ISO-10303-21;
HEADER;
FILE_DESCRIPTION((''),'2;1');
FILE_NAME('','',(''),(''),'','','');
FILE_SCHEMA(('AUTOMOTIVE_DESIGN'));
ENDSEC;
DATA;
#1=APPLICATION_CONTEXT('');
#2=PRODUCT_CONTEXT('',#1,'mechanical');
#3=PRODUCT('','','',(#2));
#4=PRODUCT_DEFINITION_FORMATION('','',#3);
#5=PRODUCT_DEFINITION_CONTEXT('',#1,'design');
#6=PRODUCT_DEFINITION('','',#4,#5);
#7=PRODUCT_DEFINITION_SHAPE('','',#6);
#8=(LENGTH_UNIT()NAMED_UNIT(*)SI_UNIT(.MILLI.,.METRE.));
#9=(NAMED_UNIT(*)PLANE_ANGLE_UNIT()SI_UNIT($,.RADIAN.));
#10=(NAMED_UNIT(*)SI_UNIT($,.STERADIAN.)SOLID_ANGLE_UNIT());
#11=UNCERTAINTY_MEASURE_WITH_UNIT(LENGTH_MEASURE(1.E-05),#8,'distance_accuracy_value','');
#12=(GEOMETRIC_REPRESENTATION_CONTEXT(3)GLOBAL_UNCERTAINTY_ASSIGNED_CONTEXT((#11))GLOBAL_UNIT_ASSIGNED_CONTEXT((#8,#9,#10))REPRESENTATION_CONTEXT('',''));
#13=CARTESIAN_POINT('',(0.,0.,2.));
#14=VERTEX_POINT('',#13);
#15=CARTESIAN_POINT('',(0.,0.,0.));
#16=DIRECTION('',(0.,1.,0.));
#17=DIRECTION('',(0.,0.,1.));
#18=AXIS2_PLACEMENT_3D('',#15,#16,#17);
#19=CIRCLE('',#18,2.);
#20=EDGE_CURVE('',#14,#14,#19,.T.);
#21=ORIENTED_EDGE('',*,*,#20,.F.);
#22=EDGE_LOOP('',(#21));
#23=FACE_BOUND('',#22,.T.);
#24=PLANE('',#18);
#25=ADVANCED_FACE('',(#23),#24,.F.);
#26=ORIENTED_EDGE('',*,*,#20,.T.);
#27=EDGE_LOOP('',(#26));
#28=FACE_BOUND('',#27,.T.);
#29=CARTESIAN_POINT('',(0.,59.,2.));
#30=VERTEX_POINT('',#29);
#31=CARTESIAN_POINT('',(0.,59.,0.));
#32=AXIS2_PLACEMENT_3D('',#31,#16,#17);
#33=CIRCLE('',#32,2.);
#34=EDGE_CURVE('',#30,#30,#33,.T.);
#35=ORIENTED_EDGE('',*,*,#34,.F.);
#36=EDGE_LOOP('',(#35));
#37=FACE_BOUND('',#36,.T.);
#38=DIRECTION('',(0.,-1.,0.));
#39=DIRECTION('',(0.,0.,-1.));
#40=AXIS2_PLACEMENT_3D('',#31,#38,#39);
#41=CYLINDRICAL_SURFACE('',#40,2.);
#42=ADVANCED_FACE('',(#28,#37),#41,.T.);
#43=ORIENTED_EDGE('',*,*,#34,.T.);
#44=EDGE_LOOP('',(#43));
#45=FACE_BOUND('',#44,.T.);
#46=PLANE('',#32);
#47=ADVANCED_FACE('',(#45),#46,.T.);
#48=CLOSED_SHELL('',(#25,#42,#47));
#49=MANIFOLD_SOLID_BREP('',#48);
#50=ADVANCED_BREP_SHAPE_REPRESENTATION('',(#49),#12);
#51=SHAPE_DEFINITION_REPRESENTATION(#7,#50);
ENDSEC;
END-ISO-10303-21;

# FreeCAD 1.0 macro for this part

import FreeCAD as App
import Part
import Sketcher
from FreeCAD import Vector

doc = App.newDocument("Part")
body = doc.addObject("PartDesign::Body", "Body")

# Sketch on XZ plane
sketch1 = body.newObject("Sketcher::SketchObject", "Sketch")
sketch1.AttachmentSupport = (doc.getObject("XZ_Plane"), [""])
sketch1.MapMode = "FlatFace"
sketch1.addGeometry(Part.Circle(Vector(0, 0, 0), Vector(0, 0, 1), 2), False)
sketch1.addConstraint([
    Sketcher.Constraint("Coincident", 0, 3, -1, 1),
    Sketcher.Constraint("Diameter", 0, 4.0),
])
pad1 = body.newObject("PartDesign::Pad", "Pad")
pad1.Profile = sketch1
pad1.Length = 59
pad1.Reversed = True

doc.recompute()
